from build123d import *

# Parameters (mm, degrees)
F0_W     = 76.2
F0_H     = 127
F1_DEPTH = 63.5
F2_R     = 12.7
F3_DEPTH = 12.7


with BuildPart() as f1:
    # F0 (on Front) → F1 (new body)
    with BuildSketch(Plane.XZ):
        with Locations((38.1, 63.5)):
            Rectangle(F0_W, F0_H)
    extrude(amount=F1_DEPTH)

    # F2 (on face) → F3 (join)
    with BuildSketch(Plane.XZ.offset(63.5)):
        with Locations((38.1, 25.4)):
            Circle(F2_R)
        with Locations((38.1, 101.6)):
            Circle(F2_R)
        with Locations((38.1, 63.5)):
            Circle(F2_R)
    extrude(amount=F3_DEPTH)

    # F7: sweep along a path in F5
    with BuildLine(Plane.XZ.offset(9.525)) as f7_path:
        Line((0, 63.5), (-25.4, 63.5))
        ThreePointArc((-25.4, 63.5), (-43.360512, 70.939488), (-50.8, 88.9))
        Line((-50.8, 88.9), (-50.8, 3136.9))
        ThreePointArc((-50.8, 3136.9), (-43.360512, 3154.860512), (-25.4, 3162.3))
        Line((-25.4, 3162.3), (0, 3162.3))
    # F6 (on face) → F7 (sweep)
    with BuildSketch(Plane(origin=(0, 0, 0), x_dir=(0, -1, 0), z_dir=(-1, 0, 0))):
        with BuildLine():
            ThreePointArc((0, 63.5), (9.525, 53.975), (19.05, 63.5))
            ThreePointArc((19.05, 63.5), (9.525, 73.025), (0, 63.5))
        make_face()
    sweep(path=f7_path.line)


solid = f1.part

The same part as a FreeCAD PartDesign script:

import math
import FreeCAD as App
import Part
import Sketcher

V = App.Vector
Q = App.Units.Quantity

doc = App.newDocument("Part")
body = doc.addObject("PartDesign::Body", "Body")

# Sketch on XZ plane
sketch1 = body.newObject("Sketcher::SketchObject", "Sketch")
sketch1.AttachmentSupport = (doc.getObject("XZ_Plane"), [""])
sketch1.MapMode = "FlatFace"
sketch1.addGeometry(Part.LineSegment(V(0, 127, 0), V(0, 0, 0)), False)
sketch1.addGeometry(Part.LineSegment(V(0, 0, 0), V(76.2, 0, 0)), False)
sketch1.addGeometry(Part.LineSegment(V(76.2, 0, 0), V(76.2, 127, 0)), False)
sketch1.addGeometry(Part.LineSegment(V(76.2, 127, 0), V(0, 127, 0)), False)
sketch1.addConstraint(Sketcher.Constraint("Coincident", 0, 2, 1, 1))
sketch1.addConstraint(Sketcher.Constraint("Coincident", 1, 2, 2, 1))
sketch1.addConstraint(Sketcher.Constraint("Coincident", 2, 2, 3, 1))
sketch1.addConstraint(Sketcher.Constraint("Coincident", 3, 2, 0, 1))
sketch1.addConstraint(Sketcher.Constraint("Vertical", 0))
sketch1.addConstraint(Sketcher.Constraint("Horizontal", 1))
sketch1.addConstraint(Sketcher.Constraint("Vertical", 2))
sketch1.addConstraint(Sketcher.Constraint("Horizontal", 3))
sketch1.addConstraint(Sketcher.Constraint("Coincident", 0, 2, -1, 1))
sketch1.addConstraint(Sketcher.Constraint("DistanceX", 1, 1, 1, 2, Q("3 in")))
sketch1.addConstraint(Sketcher.Constraint("DistanceY", 0, 2, 0, 1, Q("5 in")))
pad1 = body.newObject("PartDesign::Pad", "Pad")
pad1.Profile = sketch1
pad1.Length = Q("2.5 in")

# Sketch on XZ plane
sketch2 = body.newObject("Sketcher::SketchObject", "Sketch001")
sketch2.AttachmentSupport = (doc.getObject("XZ_Plane"), [""])
sketch2.MapMode = "FlatFace"
sketch2.AttachmentOffset = App.Placement(V(0, 0, 2.5 * 25.4), App.Rotation())
sketch2.addGeometry(Part.Circle(V(38.1, 25.4, 0), V(0, 0, 1), 12.7), False)
sketch2.addGeometry(Part.Circle(V(38.1, 101.6, 0), V(0, 0, 1), 12.7), False)
sketch2.addGeometry(Part.Circle(V(38.1, 63.5, 0), V(0, 0, 1), 12.7), False)
sketch2.addConstraint(Sketcher.Constraint("Equal", 0, 1))
sketch2.addConstraint(Sketcher.Constraint("Equal", 1, 2))
sketch2.addConstraint(Sketcher.Constraint("Vertical", 0, 3, 1, 3))
sketch2.addConstraint(Sketcher.Constraint("Vertical", 1, 3, 2, 3))
sketch2.addConstraint(Sketcher.Constraint("Diameter", 0, Q("1 in")))
sketch2.addConstraint(Sketcher.Constraint("DistanceY", -1, 1, 0, 3, Q("1 in")))
sketch2.addConstraint(Sketcher.Constraint("DistanceY", -1, 1, 1, 3, Q("4 in")))
sketch2.addConstraint(Sketcher.Constraint("DistanceX", -1, 1, 0, 3, Q("1.5 in")))
sketch2.addConstraint(Sketcher.Constraint("DistanceY", -1, 1, 2, 3, Q("2.5 in")))
pad2 = body.newObject("PartDesign::Pad", "Pad001")
pad2.Profile = sketch2
pad2.Length = Q("0.5 in")

# Sketch on YZ plane
sketch3 = body.newObject("Sketcher::SketchObject", "Sketch002")
sketch3.AttachmentSupport = (doc.getObject("YZ_Plane"), [""])
sketch3.MapMode = "FlatFace"
sketch3.addGeometry(Part.Circle(V(-9.525, 63.5, 0), V(0, 0, 1), 9.525), False)
sketch3.addConstraint(Sketcher.Constraint("Diameter", 0, Q("0.75 in")))
sketch3.addConstraint(Sketcher.Constraint("DistanceY", -1, 1, 0, 3, Q("2.5 in")))
sketch3.addConstraint(Sketcher.Constraint("DistanceX", 0, 3, -1, 1, Q("0.375 in")))

# Sketch on XZ plane
sketch4 = body.newObject("Sketcher::SketchObject", "Sketch003")
sketch4.AttachmentSupport = (doc.getObject("XZ_Plane"), [""])
sketch4.MapMode = "FlatFace"
sketch4.AttachmentOffset = App.Placement(V(0, 0, 0.375 * 25.4), App.Rotation())
sketch4.addGeometry(Part.LineSegment(V(0, 63.5, 0), V(-25.4, 63.5, 0)), False)
sketch4.addGeometry(Part.ArcOfCircle(Part.Circle(V(-25.399999, 88.900001, 0), V(0, 0, 1), 25.400001), math.radians(-179.999998), math.radians(-90.000002)), False)
sketch4.addGeometry(Part.LineSegment(V(-50.8, 88.9, 0), V(-50.8, 3136.9, 0)), False)
sketch4.addGeometry(Part.ArcOfCircle(Part.Circle(V(-25.399999, 3136.899999, 0), V(0, 0, 1), 25.400001), math.radians(90.000002), math.radians(179.999998)), False)
sketch4.addGeometry(Part.LineSegment(V(-25.4, 3162.3, 0), V(0, 3162.3, 0)), False)
sketch4.addConstraint(Sketcher.Constraint("Tangent", 0, 2, 1, 2))
sketch4.addConstraint(Sketcher.Constraint("Tangent", 1, 1, 2, 1))
sketch4.addConstraint(Sketcher.Constraint("Tangent", 2, 2, 3, 2))
sketch4.addConstraint(Sketcher.Constraint("Tangent", 3, 1, 4, 1))
sketch4.addConstraint(Sketcher.Constraint("Horizontal", 0))
sketch4.addConstraint(Sketcher.Constraint("Vertical", 2))
sketch4.addConstraint(Sketcher.Constraint("Horizontal", 4))
sketch4.addConstraint(Sketcher.Constraint("Equal", 1, 3))
sketch4.addConstraint(Sketcher.Constraint("PointOnObject", 0, 1, -2))
sketch4.addConstraint(Sketcher.Constraint("PointOnObject", 4, 2, -2))
sketch4.addConstraint(Sketcher.Constraint("Radius", 1, Q("1 in")))
sketch4.addConstraint(Sketcher.Constraint("DistanceX", 0, 2, 0, 1, Q("1 in")))
sketch4.addConstraint(Sketcher.Constraint("DistanceY", 2, 1, 2, 2, Q("120 in")))
sketch4.addConstraint(Sketcher.Constraint("DistanceY", -1, 1, 1, 3, Q("3.5 in")))
doc.recompute()

additivepipe = body.newObject("PartDesign::AdditivePipe", "AdditivePipe")
additivepipe.Profile = sketch3
additivepipe.Spine = (sketch4, ["Edge1", "Edge2", "Edge3", "Edge4", "Edge5"])

doc.recompute()
